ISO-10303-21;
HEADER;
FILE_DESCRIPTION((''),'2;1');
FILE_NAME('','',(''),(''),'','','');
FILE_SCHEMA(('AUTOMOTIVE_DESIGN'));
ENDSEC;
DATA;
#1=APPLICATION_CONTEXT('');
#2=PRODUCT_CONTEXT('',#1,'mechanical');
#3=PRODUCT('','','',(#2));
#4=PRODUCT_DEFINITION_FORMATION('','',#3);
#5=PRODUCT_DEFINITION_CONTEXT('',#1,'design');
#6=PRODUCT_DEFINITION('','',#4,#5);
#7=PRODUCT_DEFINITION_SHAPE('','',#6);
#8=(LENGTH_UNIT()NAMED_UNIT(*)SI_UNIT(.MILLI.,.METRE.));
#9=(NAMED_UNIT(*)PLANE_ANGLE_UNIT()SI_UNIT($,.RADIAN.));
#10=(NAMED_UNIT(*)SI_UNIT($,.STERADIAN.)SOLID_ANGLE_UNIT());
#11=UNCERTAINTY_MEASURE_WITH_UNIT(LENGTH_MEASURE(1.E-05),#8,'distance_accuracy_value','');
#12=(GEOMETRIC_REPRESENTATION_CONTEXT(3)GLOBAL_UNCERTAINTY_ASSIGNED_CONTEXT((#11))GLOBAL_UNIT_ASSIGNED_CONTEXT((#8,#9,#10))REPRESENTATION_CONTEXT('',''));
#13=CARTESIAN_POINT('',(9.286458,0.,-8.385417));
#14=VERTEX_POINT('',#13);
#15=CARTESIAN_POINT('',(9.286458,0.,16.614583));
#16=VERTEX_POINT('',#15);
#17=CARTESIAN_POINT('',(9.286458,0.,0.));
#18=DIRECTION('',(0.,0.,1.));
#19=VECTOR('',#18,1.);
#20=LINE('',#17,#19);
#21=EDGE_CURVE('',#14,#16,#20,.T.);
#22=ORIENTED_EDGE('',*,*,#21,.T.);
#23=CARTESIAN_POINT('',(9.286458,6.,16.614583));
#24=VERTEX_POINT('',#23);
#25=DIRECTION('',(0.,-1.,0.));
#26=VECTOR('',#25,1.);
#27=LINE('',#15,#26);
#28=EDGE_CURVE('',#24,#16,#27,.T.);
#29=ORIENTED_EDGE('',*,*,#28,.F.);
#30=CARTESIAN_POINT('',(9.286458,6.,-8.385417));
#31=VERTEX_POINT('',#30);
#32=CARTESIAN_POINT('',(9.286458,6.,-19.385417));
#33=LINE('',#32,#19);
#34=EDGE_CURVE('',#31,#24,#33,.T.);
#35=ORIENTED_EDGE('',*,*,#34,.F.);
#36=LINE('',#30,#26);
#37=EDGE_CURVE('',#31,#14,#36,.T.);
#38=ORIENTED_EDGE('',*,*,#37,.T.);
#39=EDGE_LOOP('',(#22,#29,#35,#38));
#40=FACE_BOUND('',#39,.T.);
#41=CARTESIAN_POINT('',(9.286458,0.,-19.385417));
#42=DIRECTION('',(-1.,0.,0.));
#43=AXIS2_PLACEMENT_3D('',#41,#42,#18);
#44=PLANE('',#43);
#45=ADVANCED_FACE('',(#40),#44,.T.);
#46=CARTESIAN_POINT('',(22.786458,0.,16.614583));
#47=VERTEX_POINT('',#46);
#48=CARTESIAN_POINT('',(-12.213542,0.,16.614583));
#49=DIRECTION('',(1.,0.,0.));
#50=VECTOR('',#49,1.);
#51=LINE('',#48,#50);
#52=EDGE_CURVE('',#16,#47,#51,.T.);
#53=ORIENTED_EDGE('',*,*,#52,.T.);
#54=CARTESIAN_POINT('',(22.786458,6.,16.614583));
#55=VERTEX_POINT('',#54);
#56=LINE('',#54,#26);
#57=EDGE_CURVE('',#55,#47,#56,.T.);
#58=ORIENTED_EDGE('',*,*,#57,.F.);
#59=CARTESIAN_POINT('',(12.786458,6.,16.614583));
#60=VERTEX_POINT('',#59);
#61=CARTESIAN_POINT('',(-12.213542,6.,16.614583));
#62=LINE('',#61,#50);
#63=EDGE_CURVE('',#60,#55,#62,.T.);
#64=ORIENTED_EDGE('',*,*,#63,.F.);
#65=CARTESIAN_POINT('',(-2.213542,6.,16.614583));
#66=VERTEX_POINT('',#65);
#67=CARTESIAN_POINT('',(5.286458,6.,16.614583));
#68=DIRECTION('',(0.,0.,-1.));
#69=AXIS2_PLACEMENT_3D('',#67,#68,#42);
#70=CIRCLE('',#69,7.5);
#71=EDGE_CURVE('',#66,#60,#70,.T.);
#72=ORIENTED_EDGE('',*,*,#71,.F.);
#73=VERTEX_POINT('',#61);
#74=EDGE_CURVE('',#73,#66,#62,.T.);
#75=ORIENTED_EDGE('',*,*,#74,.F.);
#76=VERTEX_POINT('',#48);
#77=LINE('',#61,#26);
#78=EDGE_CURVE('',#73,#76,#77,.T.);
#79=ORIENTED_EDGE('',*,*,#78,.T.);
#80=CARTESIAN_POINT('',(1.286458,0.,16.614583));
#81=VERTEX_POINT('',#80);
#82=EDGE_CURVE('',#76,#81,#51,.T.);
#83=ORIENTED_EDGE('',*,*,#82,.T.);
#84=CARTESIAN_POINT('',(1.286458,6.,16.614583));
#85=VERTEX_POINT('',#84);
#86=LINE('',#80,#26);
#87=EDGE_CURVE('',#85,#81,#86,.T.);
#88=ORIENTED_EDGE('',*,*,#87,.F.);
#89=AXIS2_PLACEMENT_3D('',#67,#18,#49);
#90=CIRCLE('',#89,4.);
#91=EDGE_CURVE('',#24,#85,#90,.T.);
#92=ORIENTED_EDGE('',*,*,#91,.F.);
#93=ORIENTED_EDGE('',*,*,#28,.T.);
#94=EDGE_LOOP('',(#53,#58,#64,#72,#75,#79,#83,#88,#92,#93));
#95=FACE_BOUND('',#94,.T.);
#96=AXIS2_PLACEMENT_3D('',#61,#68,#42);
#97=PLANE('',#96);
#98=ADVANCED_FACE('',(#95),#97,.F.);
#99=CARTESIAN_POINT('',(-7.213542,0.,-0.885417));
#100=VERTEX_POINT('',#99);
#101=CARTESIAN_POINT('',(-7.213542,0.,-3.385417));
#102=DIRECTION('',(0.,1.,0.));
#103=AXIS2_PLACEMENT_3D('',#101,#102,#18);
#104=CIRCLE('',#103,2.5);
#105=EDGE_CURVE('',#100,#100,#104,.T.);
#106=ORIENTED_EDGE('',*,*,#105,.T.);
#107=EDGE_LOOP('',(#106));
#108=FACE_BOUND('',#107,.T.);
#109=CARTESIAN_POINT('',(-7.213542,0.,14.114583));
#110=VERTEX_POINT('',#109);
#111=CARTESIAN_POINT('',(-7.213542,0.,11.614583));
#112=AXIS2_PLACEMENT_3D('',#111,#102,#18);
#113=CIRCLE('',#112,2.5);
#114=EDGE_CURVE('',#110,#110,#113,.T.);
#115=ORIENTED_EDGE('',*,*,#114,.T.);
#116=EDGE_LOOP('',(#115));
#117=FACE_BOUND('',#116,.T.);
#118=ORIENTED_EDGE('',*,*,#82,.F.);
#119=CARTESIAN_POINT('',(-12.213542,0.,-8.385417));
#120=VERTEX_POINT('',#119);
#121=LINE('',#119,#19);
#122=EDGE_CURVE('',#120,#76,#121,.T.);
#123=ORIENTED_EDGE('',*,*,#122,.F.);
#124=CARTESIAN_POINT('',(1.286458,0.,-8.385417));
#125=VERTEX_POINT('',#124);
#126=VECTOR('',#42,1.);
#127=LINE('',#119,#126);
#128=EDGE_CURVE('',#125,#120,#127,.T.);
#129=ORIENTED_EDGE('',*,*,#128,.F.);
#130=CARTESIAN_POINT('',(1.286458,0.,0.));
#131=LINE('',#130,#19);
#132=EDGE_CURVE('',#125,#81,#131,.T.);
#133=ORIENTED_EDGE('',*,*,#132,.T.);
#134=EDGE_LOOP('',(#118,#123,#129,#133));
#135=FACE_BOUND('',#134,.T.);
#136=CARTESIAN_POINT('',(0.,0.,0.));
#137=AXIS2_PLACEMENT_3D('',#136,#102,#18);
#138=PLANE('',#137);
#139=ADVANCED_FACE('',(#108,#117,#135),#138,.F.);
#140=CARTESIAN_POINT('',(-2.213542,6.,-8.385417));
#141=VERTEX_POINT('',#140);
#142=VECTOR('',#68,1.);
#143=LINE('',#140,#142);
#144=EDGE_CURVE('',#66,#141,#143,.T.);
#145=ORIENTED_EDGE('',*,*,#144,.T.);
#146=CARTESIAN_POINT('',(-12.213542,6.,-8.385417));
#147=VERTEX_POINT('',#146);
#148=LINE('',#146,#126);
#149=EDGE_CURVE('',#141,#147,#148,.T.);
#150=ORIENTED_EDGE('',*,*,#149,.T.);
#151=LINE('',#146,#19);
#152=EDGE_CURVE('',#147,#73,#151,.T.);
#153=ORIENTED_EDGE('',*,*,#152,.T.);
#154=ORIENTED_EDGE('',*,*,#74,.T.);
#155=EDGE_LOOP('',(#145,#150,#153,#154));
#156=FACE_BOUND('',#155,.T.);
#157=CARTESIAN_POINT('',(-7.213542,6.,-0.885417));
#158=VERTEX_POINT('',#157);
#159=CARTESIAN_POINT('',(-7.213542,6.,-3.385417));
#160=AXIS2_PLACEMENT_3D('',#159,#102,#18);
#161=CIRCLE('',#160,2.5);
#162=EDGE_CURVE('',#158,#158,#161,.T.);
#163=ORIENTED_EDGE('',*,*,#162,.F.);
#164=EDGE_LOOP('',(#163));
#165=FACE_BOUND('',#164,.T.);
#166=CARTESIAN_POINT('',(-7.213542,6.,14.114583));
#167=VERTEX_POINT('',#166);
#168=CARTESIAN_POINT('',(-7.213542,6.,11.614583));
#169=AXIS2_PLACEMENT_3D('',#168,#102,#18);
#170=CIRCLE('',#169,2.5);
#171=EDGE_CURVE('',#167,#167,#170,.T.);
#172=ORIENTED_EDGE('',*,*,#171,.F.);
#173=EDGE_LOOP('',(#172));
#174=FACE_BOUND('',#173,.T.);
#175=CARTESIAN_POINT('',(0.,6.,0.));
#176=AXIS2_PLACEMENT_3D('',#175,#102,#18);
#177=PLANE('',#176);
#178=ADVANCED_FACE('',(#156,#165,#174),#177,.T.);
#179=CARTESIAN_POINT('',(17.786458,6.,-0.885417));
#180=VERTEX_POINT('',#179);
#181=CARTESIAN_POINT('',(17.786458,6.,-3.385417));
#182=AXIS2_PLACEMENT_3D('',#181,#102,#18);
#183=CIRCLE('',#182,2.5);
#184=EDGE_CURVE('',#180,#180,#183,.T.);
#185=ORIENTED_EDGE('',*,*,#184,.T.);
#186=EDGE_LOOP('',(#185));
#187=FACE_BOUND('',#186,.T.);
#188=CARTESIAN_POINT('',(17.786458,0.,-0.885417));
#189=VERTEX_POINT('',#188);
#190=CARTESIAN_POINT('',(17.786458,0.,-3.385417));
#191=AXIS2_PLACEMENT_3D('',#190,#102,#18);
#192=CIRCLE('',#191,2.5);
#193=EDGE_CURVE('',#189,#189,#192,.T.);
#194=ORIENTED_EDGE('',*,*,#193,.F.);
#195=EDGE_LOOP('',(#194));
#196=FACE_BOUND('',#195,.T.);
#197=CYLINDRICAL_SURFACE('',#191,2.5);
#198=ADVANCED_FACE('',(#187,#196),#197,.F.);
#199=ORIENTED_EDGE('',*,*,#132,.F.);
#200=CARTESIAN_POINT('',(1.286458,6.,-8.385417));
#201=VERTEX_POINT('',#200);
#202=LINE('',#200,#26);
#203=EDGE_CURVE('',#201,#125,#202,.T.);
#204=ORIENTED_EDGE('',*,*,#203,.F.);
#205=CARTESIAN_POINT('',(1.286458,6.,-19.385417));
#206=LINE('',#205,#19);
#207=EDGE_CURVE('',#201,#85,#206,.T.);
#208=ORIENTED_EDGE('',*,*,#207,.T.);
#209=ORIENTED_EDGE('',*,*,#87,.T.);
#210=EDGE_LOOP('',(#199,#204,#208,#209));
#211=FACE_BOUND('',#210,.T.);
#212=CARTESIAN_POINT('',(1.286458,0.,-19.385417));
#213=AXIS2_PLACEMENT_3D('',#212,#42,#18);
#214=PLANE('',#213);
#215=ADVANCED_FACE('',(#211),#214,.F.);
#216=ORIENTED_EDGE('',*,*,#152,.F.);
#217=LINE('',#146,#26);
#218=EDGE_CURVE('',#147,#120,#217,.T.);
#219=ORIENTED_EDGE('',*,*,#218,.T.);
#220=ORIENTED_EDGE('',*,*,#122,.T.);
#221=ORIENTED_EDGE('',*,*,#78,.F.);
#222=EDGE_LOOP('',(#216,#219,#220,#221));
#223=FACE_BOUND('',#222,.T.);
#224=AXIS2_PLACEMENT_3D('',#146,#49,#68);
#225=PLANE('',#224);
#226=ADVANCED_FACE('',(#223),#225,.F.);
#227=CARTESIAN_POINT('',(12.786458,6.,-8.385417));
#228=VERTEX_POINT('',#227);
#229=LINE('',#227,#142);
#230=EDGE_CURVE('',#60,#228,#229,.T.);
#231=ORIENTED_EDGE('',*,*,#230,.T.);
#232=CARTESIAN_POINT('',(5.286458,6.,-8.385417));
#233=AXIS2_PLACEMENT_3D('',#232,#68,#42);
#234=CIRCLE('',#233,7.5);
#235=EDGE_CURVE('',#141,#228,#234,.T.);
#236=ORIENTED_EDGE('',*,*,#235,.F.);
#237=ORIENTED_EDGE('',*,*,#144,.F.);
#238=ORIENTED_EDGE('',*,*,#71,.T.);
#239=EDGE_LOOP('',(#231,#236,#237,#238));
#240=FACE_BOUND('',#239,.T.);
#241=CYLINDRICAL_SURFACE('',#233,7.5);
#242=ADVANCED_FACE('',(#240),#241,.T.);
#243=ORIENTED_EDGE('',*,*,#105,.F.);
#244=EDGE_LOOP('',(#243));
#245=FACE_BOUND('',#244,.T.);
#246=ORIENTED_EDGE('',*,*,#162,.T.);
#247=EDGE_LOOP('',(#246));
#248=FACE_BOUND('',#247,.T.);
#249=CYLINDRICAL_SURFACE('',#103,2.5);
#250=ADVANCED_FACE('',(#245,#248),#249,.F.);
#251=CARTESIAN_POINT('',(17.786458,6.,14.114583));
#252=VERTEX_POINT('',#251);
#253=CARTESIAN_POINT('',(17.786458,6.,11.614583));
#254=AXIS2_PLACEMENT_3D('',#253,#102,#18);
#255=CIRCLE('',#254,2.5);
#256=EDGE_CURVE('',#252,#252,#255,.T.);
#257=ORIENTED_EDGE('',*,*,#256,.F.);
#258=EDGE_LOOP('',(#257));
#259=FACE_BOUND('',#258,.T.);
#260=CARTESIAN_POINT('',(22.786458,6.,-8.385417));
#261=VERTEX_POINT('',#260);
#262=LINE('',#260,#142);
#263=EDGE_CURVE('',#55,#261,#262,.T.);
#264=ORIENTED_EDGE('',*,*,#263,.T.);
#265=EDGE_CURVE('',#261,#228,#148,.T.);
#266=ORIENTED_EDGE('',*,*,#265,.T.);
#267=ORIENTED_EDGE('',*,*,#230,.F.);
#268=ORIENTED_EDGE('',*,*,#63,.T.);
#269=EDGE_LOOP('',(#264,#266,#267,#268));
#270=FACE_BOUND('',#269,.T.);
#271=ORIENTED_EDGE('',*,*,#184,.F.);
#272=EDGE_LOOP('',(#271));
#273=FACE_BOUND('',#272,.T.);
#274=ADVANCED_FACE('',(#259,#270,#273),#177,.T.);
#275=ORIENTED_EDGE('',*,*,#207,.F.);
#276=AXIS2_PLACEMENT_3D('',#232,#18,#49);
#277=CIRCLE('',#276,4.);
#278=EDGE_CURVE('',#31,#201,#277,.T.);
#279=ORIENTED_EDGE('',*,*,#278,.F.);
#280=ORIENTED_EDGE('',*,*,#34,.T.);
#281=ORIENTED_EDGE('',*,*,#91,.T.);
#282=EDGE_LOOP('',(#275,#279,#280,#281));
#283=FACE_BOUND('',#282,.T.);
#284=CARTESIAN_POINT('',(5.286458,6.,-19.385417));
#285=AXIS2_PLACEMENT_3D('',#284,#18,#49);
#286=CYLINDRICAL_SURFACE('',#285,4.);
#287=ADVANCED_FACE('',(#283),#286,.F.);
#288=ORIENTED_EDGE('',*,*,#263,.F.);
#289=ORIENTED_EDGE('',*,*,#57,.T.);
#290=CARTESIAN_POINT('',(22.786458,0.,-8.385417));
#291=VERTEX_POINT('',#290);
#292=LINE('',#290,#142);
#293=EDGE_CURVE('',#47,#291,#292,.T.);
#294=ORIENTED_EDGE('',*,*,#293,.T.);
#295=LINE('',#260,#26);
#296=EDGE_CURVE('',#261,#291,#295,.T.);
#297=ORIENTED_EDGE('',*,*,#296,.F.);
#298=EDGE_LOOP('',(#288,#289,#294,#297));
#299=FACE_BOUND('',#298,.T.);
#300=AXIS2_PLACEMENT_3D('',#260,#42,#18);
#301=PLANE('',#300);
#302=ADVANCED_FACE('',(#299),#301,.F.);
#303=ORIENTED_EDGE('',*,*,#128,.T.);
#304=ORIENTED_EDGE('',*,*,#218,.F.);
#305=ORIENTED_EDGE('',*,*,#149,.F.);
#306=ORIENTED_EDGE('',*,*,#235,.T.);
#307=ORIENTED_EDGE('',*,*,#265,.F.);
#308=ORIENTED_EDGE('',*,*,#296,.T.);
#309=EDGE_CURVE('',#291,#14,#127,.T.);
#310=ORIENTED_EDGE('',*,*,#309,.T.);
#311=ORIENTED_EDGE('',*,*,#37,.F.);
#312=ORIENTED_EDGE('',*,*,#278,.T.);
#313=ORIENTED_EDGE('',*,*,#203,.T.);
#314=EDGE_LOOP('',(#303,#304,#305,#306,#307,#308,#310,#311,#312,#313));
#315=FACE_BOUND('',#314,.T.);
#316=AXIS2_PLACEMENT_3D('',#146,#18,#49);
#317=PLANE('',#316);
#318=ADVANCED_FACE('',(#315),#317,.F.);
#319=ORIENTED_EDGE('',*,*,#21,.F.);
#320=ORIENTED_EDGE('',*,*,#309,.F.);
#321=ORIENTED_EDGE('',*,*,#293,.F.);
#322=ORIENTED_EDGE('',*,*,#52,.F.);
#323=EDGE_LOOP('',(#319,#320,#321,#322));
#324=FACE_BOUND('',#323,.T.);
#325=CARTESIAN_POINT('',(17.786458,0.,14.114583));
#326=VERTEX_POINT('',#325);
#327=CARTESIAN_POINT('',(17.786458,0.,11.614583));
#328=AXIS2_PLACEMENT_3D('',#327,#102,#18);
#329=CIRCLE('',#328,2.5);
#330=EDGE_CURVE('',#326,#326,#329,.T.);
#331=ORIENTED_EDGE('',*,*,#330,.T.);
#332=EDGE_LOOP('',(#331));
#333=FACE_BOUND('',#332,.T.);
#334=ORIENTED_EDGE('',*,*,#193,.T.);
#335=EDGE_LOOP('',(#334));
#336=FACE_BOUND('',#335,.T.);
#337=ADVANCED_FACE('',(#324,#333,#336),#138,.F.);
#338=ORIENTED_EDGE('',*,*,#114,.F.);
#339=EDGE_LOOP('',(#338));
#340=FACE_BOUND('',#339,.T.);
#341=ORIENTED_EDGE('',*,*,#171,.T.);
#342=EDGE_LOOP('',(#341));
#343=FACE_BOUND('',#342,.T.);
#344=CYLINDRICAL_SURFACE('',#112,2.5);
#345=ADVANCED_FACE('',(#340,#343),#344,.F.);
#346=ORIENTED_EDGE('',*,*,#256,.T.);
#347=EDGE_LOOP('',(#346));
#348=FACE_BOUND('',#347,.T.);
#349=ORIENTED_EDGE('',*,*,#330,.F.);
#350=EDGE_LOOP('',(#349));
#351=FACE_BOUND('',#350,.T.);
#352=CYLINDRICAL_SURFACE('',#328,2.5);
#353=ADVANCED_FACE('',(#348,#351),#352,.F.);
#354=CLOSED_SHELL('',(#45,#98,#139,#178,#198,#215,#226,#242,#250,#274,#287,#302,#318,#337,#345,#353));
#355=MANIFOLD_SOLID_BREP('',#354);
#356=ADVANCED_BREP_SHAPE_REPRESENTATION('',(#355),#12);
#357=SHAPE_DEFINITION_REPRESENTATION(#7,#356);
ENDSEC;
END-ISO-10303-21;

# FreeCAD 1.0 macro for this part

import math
import FreeCAD as App
import Part
import Sketcher
from FreeCAD import Vector


def add_polygon(sketch, points):
    """Adds a closed chain of lines whose ends are joined by coincident constraints."""
    first, n = sketch.GeometryCount, len(points)
    for a, b in zip(points, points[1:] + points[:1]):
        sketch.addGeometry(Part.LineSegment(App.Vector(*a, 0), App.Vector(*b, 0)), False)
    for i in range(n):
        sketch.addConstraint(Sketcher.Constraint("Coincident", first + i, 2, first + (i + 1) % n, 1))

doc = App.newDocument("Part")
params = doc.addObject("Spreadsheet::Sheet", "Params")
for row, (alias, value) in enumerate([
    ("sketch1_width", "35 mm"),
    ("sketch1_height", "25 mm"),
    ("pad1_length", "6 mm"),
    ("sketch2_diameter", "5 mm"),
    ("pocket1_length", "6 mm"),
    ("sketch3_height", "25 mm"),
    ("sketch3_width", "7.5 mm"),
    ("revolution_angle", "180 deg"),
    ("sketch4_radius", "4 mm"),
    ("sketch4_height", "6 mm"),
    ("pocket2_length", "36 mm"),
], start=1):
    params.set(f"A{row}", alias)
    params.set(f"B{row}", "=" + value)
    params.setAlias(f"B{row}", alias)

body = doc.addObject("PartDesign::Body", "Body")

# Sketch on XZ plane
sketch1 = body.newObject("Sketcher::SketchObject", "Sketch")
sketch1.AttachmentSupport = (doc.getObject("XZ_Plane"), [""])
sketch1.MapMode = "FlatFace"
add_polygon(sketch1, [(-12, -8), (-12, 17), (23, 17), (23, -8)])  # lines 0-3
sketch1.addConstraint(Sketcher.Constraint("Vertical", 0))
sketch1.addConstraint(Sketcher.Constraint("Horizontal", 1))
sketch1.addConstraint(Sketcher.Constraint("Vertical", 2))
sketch1.addConstraint(Sketcher.Constraint("Horizontal", 3))
sketch1.addConstraint(Sketcher.Constraint("DistanceX", 1, 1, 1, 2, 35.0))
sketch1.addConstraint(Sketcher.Constraint("DistanceY", 0, 1, 0, 2, 25.0))
sketch1.addConstraint(Sketcher.Constraint("DistanceX", 0, 2, -1, 1, 12.213542))
sketch1.addConstraint(Sketcher.Constraint("DistanceY", -1, 1, 0, 2, 16.614583))
sketch1.setExpression("Constraints[8]", "Params.sketch1_width")
sketch1.setExpression("Constraints[9]", "Params.sketch1_height")
pad1 = body.newObject("PartDesign::Pad", "Pad")
pad1.Profile = sketch1
pad1.setExpression("Length", "Params.pad1_length")
pad1.Reversed = True

# Sketch on XZ plane
sketch2 = body.newObject("Sketcher::SketchObject", "Sketch001")
sketch2.AttachmentSupport = (doc.getObject("XZ_Plane"), [""])
sketch2.MapMode = "FlatFace"
sketch2.AttachmentOffset = App.Placement(Vector(0, 0, -6), App.Rotation())
sketch2.addGeometry(Part.Circle(Vector(-7.2, 11.6, 0), Vector(0, 0, 1), 2.5), False)
sketch2.addGeometry(Part.Circle(Vector(17.8, -3.4, 0), Vector(0, 0, 1), 2.5), False)
sketch2.addGeometry(Part.Circle(Vector(17.8, 11.6, 0), Vector(0, 0, 1), 2.5), False)
sketch2.addGeometry(Part.Circle(Vector(-7.2, -3.4, 0), Vector(0, 0, 1), 2.5), False)
sketch2.addConstraint(Sketcher.Constraint("Equal", 0, 1))
sketch2.addConstraint(Sketcher.Constraint("Equal", 1, 2))
sketch2.addConstraint(Sketcher.Constraint("Equal", 2, 3))
sketch2.addConstraint(Sketcher.Constraint("Horizontal", 0, 3, 2, 3))
sketch2.addConstraint(Sketcher.Constraint("Horizontal", 1, 3, 3, 3))
sketch2.addConstraint(Sketcher.Constraint("Vertical", 1, 3, 2, 3))
sketch2.addConstraint(Sketcher.Constraint("Vertical", 0, 3, 3, 3))
sketch2.addConstraint(Sketcher.Constraint("Diameter", 0, 5.0))
sketch2.addConstraint(Sketcher.Constraint("DistanceX", 0, 3, 1, 3, 25.0))
sketch2.addConstraint(Sketcher.Constraint("DistanceY", 1, 3, 0, 3, 15.0))
sketch2.addConstraint(Sketcher.Constraint("DistanceX", 0, 3, -1, 1, 7.213542))
sketch2.addConstraint(Sketcher.Constraint("DistanceY", -1, 1, 0, 3, 11.614583))
sketch2.setExpression("Constraints[7]", "Params.sketch2_diameter")
pocket1 = body.newObject("PartDesign::Pocket", "Pocket")
pocket1.Profile = sketch2
pocket1.setExpression("Length", "Params.pocket1_length")
pocket1.Reversed = True

# Sketch on XZ plane
sketch3 = body.newObject("Sketcher::SketchObject", "Sketch002")
sketch3.AttachmentSupport = (doc.getObject("XZ_Plane"), [""])
sketch3.MapMode = "FlatFace"
sketch3.AttachmentOffset = App.Placement(Vector(0, 0, -6), App.Rotation())
add_polygon(sketch3, [(5, -8), (5, 17), (13, 17), (13, -8)])  # lines 0-3
sketch3.addGeometry(Part.LineSegment(Vector(5, -8, 0), Vector(5, 17, 0)), True)  # axis
sketch3.addConstraint(Sketcher.Constraint("Vertical", 0))
sketch3.addConstraint(Sketcher.Constraint("Horizontal", 1))
sketch3.addConstraint(Sketcher.Constraint("Vertical", 2))
sketch3.addConstraint(Sketcher.Constraint("Horizontal", 3))
sketch3.addConstraint(Sketcher.Constraint("Vertical", 4))
sketch3.addConstraint(Sketcher.Constraint("Coincident", 4, 1, 3, 2))
sketch3.addConstraint(Sketcher.Constraint("Horizontal", 1, 2, 4, 2))
sketch3.addConstraint(Sketcher.Constraint("DistanceY", 0, 1, 0, 2, 25.0))
sketch3.addConstraint(Sketcher.Constraint("DistanceX", 1, 1, 1, 2, 7.5))
sketch3.addConstraint(Sketcher.Constraint("DistanceX", -1, 1, 0, 2, 5.286458))
sketch3.addConstraint(Sketcher.Constraint("DistanceY", -1, 1, 0, 2, 16.614583))
sketch3.setExpression("Constraints[11]", "Params.sketch3_height")
sketch3.setExpression("Constraints[12]", "Params.sketch3_width")
revolution = body.newObject("PartDesign::Revolution", "Revolution")
revolution.Profile = sketch3
revolution.ReferenceAxis = (sketch3, ["Axis0"])
revolution.setExpression("Angle", "Params.revolution_angle")

# Sketch on XY plane
sketch4 = body.newObject("Sketcher::SketchObject", "Sketch003")
sketch4.AttachmentSupport = (doc.getObject("XY_Plane"), [""])
sketch4.MapMode = "FlatFace"
sketch4.AttachmentOffset = App.Placement(Vector(0, 0, 16.614583), App.Rotation())
sketch4.addGeometry(Part.ArcOfCircle(Part.Circle(Vector(5.3, 6, 0), Vector(0, 0, 1), 4), math.radians(0), math.radians(180)), False)
sketch4.addGeometry(Part.LineSegment(Vector(1.3, 6, 0), Vector(1.3, 0, 0)), False)
sketch4.addGeometry(Part.LineSegment(Vector(1.3, 0, 0), Vector(9.3, 0, 0)), False)
sketch4.addGeometry(Part.LineSegment(Vector(9.3, 0, 0), Vector(9.3, 6, 0)), False)
sketch4.addConstraint(Sketcher.Constraint("Tangent", 0, 2, 1, 1))
sketch4.addConstraint(Sketcher.Constraint("Coincident", 1, 2, 2, 1))
sketch4.addConstraint(Sketcher.Constraint("Coincident", 2, 2, 3, 1))
sketch4.addConstraint(Sketcher.Constraint("Tangent", 3, 2, 0, 1))
sketch4.addConstraint(Sketcher.Constraint("Vertical", 1))
sketch4.addConstraint(Sketcher.Constraint("Horizontal", 2))
sketch4.addConstraint(Sketcher.Constraint("Vertical", 3))
sketch4.addConstraint(Sketcher.Constraint("PointOnObject", 1, 2, -1))
sketch4.addConstraint(Sketcher.Constraint("Radius", 0, 4.0))
sketch4.addConstraint(Sketcher.Constraint("DistanceY", 1, 2, 1, 1, 6.0))
sketch4.addConstraint(Sketcher.Constraint("DistanceX", -1, 1, 0, 3, 5.286458))
sketch4.setExpression("Constraints[8]", "Params.sketch4_radius")
sketch4.setExpression("Constraints[9]", "Params.sketch4_height")
pocket2 = body.newObject("PartDesign::Pocket", "Pocket001")
pocket2.Profile = sketch4
pocket2.setExpression("Length", "Params.pocket2_length")

doc.recompute()
